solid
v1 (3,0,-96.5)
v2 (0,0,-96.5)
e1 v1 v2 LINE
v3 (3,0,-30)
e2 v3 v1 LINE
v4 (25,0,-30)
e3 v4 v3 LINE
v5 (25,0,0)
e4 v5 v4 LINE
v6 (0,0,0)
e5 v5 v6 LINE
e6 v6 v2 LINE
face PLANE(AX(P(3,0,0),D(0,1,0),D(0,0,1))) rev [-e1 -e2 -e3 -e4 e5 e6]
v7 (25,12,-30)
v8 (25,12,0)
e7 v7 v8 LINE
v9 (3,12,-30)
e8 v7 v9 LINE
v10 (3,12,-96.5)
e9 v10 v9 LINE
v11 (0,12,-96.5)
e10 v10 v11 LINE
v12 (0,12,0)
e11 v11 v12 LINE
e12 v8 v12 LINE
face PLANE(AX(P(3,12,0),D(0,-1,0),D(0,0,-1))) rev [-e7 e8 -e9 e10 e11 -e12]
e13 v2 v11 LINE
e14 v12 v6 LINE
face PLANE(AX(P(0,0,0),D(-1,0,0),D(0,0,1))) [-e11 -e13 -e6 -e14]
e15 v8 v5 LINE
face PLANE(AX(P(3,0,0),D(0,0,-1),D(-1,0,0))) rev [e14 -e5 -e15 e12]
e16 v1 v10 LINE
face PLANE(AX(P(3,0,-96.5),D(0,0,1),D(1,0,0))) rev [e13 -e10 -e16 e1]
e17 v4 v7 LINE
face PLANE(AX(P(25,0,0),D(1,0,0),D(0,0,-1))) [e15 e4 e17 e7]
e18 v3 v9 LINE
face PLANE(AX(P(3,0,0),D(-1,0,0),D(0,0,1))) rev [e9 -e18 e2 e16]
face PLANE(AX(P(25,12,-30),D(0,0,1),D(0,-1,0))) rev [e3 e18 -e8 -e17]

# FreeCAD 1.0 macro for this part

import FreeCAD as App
import Part
import Sketcher

doc = App.newDocument("Part")
body = doc.addObject("PartDesign::Body", "Body")

# Sketch on YZ plane
sketch1 = body.newObject("Sketcher::SketchObject", "Sketch")
sketch1.AttachmentSupport = (doc.getObject("YZ_Plane"), [""])
sketch1.MapMode = "FlatFace"
sketch1.addGeometry([
    Part.LineSegment(App.Vector(12, 0, 0), App.Vector(0, 0, 0)),
    Part.LineSegment(App.Vector(0, 0, 0), App.Vector(0, -96, 0)),
    Part.LineSegment(App.Vector(0, -96, 0), App.Vector(12, -96, 0)),
    Part.LineSegment(App.Vector(12, -96, 0), App.Vector(12, 0, 0)),
], False)
sketch1.addConstraint([
    Sketcher.Constraint("Coincident", 0, 2, 1, 1),
    Sketcher.Constraint("Coincident", 1, 2, 2, 1),
    Sketcher.Constraint("Coincident", 2, 2, 3, 1),
    Sketcher.Constraint("Coincident", 3, 2, 0, 1),
    Sketcher.Constraint("Horizontal", 0),
    Sketcher.Constraint("Vertical", 1),
    Sketcher.Constraint("Horizontal", 2),
    Sketcher.Constraint("Vertical", 3),
    Sketcher.Constraint("Coincident", 0, 2, -1, 1),
    Sketcher.Constraint("DistanceX", 0, 2, 0, 1, 12.0),
    Sketcher.Constraint("DistanceY", 1, 2, 1, 1, 96.5),
])
pad1 = body.newObject("PartDesign::Pad", "Pad")
pad1.Profile = sketch1
pad1.Length = 3

# Sketch on YZ plane
sketch2 = body.newObject("Sketcher::SketchObject", "Sketch001")
sketch2.AttachmentSupport = (doc.getObject("YZ_Plane"), [""])
sketch2.MapMode = "FlatFace"
sketch2.AttachmentOffset = App.Placement(App.Vector(0, 0, 3), App.Rotation())
sketch2.addGeometry([
    Part.LineSegment(App.Vector(12, 0, 0), App.Vector(0, 0, 0)),
    Part.LineSegment(App.Vector(0, 0, 0), App.Vector(0, -30, 0)),
    Part.LineSegment(App.Vector(0, -30, 0), App.Vector(12, -30, 0)),
    Part.LineSegment(App.Vector(12, -30, 0), App.Vector(12, 0, 0)),
], False)
sketch2.addConstraint([
    Sketcher.Constraint("Coincident", 0, 2, 1, 1),
    Sketcher.Constraint("Coincident", 1, 2, 2, 1),
    Sketcher.Constraint("Coincident", 2, 2, 3, 1),
    Sketcher.Constraint("Coincident", 3, 2, 0, 1),
    Sketcher.Constraint("Horizontal", 0),
    Sketcher.Constraint("Vertical", 1),
    Sketcher.Constraint("Horizontal", 2),
    Sketcher.Constraint("Vertical", 3),
    Sketcher.Constraint("Coincident", 0, 2, -1, 1),
    Sketcher.Constraint("DistanceX", 0, 2, 0, 1, 12.0),
    Sketcher.Constraint("DistanceY", 1, 2, 1, 1, 30.0),
])
pad2 = body.newObject("PartDesign::Pad", "Pad001")
pad2.Profile = sketch2
pad2.Length = 22

doc.recompute()
